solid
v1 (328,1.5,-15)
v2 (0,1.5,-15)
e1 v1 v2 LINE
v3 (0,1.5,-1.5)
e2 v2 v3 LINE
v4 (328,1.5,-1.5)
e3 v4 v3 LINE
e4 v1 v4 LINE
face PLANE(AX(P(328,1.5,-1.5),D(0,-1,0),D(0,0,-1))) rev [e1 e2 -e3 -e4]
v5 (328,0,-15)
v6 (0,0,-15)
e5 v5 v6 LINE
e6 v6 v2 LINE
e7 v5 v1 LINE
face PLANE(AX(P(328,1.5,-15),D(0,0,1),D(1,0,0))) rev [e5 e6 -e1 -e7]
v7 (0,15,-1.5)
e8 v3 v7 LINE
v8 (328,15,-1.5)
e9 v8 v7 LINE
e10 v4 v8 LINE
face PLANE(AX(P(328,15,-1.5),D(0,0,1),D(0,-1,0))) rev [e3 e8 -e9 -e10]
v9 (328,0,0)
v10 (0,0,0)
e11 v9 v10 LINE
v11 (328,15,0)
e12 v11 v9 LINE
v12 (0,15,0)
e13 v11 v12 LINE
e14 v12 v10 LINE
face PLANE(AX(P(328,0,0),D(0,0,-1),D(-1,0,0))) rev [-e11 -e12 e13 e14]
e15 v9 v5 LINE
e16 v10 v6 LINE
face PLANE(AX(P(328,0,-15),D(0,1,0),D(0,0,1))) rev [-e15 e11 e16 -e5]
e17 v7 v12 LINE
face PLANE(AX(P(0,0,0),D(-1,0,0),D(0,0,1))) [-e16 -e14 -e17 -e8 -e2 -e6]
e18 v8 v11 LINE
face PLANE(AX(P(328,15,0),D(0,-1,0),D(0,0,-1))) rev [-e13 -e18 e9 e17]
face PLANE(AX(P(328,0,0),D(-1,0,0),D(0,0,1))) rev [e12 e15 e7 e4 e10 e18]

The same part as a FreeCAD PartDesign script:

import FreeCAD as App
import Part
import Sketcher
from FreeCAD import Vector
Q = App.Units.Quantity


def add_polygon(sketch, points):
    """Adds a closed chain of lines whose ends are joined by coincident constraints."""
    first, n = sketch.GeometryCount, len(points)
    for a, b in zip(points, points[1:] + points[:1]):
        sketch.addGeometry(Part.LineSegment(App.Vector(*a, 0), App.Vector(*b, 0)), False)
    for i in range(n):
        sketch.addConstraint(Sketcher.Constraint("Coincident", first + i, 2, first + (i + 1) % n, 1))

doc = App.newDocument("Part")
body = doc.addObject("PartDesign::Body", "Body")

# Sketch on YZ plane
sketch1 = body.newObject("Sketcher::SketchObject", "Sketch")
sketch1.AttachmentSupport = (doc.getObject("YZ_Plane"), [""])
sketch1.MapMode = "FlatFace"
add_polygon(sketch1, [(15, 0), (0, 0), (0, -15), (1.5, -15), (1.5, -1.5), (15, -1.5)])  # lines 0-5
sketch1.addConstraint([
    Sketcher.Constraint("Horizontal", 0),
    Sketcher.Constraint("Vertical", 1),
    Sketcher.Constraint("Horizontal", 2),
    Sketcher.Constraint("Vertical", 3),
    Sketcher.Constraint("Horizontal", 4),
    Sketcher.Constraint("Vertical", 5),
    Sketcher.Constraint("Coincident", 0, 2, -1, 1),
    Sketcher.Constraint("Equal", 0, 1),
    Sketcher.Constraint("Equal", 4, 3),
    Sketcher.Constraint("DistanceX", 0, 2, 0, 1, Q("15 mm")),
    Sketcher.Constraint("DistanceX", 2, 1, 2, 2, Q("1.5 mm")),
])
pad1 = body.newObject("PartDesign::Pad", "Pad")
pad1.Profile = sketch1
pad1.Length = 328

doc.recompute()
